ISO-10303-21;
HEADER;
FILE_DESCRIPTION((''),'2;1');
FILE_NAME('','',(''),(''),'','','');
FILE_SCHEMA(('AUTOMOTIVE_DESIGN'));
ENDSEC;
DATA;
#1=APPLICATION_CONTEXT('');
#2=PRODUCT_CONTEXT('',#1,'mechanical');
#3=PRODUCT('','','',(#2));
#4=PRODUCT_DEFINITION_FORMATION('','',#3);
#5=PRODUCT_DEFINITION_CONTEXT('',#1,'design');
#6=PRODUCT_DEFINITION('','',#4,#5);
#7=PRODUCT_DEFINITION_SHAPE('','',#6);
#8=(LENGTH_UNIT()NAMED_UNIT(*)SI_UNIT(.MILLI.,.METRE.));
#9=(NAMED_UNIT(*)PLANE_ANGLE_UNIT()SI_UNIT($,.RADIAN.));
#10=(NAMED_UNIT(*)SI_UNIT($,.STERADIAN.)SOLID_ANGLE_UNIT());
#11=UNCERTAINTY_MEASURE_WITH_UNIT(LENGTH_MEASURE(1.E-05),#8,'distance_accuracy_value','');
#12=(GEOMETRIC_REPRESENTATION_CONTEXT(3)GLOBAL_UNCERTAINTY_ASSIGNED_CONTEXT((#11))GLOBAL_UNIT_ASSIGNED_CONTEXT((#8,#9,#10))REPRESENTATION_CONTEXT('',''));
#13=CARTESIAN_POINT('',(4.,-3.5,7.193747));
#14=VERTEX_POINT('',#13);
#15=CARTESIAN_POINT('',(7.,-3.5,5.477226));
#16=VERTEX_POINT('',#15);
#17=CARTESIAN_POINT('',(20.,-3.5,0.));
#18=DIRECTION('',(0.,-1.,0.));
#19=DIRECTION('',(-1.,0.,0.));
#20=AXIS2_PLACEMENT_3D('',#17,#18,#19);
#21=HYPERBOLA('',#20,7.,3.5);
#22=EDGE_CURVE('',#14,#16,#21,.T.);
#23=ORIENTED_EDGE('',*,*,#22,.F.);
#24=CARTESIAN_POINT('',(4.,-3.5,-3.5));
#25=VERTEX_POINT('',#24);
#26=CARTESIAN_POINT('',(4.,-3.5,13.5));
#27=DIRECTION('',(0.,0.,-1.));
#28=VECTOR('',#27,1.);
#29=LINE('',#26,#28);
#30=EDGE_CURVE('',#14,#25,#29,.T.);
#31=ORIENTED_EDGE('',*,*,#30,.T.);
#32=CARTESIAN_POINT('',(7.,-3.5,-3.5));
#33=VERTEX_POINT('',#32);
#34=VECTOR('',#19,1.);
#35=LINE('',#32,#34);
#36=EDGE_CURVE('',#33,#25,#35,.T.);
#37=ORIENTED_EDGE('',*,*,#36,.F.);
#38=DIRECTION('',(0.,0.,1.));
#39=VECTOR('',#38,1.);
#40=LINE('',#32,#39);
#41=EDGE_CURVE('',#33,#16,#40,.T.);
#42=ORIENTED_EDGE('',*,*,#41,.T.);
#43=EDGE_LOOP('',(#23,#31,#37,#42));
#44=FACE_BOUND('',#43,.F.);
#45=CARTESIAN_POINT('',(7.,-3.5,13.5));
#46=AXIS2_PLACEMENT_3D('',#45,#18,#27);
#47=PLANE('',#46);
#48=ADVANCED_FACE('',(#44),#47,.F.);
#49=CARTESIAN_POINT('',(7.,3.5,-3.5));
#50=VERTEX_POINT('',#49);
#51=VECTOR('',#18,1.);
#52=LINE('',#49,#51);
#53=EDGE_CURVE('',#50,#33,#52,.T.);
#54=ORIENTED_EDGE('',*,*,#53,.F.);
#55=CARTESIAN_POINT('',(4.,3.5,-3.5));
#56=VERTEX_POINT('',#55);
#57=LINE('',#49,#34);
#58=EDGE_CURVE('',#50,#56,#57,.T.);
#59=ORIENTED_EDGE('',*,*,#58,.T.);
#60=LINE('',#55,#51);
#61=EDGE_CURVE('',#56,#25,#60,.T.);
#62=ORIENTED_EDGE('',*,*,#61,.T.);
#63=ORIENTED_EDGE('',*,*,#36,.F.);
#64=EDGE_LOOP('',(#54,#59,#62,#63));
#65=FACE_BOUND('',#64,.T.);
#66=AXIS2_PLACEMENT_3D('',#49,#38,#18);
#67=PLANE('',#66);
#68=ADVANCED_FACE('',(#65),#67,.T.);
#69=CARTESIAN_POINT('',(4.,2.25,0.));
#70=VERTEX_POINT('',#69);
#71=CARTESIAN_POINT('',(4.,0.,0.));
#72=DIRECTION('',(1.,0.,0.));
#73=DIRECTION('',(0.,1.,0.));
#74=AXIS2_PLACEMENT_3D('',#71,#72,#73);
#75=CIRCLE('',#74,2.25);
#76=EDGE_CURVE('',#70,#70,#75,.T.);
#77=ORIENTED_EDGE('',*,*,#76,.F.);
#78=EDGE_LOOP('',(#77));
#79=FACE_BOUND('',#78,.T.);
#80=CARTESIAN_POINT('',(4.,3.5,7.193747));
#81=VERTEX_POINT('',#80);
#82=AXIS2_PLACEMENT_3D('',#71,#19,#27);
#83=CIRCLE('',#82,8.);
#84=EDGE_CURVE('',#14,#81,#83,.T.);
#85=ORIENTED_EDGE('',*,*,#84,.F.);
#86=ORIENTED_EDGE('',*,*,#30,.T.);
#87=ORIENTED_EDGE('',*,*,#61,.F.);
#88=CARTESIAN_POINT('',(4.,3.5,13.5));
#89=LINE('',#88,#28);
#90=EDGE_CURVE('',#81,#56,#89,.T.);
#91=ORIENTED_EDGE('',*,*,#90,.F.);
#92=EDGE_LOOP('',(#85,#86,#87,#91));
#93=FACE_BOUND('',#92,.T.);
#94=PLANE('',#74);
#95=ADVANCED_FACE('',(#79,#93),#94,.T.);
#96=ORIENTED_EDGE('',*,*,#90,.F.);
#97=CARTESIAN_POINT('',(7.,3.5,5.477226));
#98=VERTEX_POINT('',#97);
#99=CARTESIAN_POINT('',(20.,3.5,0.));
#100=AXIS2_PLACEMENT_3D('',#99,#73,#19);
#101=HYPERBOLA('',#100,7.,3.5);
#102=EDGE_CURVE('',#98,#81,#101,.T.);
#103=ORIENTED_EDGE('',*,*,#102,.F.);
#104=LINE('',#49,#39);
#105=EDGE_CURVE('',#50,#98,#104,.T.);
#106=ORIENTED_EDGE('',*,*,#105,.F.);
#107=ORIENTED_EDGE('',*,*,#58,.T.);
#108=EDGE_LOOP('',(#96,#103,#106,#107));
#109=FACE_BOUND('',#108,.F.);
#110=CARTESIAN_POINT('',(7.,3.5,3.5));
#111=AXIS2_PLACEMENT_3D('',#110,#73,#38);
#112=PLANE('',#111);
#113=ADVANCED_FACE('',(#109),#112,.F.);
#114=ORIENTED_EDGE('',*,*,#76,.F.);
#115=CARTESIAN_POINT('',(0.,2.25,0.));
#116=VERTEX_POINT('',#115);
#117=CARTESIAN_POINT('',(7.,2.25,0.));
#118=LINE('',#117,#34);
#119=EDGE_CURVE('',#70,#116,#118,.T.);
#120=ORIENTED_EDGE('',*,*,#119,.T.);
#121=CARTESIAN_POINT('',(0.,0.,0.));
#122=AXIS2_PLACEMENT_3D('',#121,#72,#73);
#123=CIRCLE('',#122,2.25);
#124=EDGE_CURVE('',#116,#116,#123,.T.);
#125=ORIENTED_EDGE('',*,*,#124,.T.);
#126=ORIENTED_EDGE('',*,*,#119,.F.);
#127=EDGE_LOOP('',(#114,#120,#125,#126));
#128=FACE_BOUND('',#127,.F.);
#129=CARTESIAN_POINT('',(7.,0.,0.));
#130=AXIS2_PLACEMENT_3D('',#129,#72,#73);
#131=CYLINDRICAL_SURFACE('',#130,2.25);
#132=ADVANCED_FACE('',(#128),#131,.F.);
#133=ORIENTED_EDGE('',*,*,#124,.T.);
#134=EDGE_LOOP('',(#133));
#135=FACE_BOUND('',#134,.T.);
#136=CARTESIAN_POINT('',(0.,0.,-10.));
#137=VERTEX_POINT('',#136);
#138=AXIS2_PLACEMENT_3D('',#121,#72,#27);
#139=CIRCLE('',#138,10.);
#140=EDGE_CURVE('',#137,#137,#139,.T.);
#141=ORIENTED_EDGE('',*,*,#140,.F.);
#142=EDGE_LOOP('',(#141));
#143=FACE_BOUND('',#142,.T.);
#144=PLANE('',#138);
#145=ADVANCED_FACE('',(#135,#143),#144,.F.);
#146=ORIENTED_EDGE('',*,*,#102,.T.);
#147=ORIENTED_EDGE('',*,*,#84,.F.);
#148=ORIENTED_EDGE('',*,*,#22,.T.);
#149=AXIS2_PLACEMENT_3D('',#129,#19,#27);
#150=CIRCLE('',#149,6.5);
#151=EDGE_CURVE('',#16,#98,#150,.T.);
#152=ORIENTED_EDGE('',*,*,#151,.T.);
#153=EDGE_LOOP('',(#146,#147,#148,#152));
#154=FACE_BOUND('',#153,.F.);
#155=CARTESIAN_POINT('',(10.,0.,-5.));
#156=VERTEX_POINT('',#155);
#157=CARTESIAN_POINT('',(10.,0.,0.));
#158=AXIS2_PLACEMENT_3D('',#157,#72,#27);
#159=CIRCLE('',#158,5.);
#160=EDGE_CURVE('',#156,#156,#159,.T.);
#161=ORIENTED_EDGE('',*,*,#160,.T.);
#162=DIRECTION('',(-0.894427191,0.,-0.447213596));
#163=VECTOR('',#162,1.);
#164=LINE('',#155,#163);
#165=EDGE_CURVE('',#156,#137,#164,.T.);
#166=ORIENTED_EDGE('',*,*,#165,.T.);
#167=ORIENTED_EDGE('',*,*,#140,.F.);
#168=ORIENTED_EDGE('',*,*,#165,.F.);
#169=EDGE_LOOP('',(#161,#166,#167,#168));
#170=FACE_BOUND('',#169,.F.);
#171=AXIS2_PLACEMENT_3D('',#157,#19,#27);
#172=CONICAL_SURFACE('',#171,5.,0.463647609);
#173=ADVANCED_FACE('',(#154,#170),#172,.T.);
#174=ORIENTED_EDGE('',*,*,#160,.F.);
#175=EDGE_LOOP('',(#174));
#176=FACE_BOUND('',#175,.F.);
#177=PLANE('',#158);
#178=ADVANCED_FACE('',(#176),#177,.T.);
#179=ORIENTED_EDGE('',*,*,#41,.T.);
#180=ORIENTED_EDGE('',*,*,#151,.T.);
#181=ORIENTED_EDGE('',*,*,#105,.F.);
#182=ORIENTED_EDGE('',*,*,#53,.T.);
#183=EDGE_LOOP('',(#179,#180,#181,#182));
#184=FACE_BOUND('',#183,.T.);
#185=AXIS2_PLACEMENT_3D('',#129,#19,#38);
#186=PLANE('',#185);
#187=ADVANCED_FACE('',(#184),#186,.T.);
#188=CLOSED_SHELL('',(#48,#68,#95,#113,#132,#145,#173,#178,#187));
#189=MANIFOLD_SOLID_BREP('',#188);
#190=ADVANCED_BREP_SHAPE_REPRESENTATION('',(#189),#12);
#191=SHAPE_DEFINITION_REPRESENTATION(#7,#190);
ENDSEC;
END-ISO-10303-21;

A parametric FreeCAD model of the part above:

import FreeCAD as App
import Part
import Sketcher
from FreeCAD import Vector
Q = App.Units.Quantity


def add_polygon(sketch, points):
    """Adds a closed chain of lines whose ends are joined by coincident constraints."""
    first, n = sketch.GeometryCount, len(points)
    for a, b in zip(points, points[1:] + points[:1]):
        sketch.addGeometry(Part.LineSegment(App.Vector(*a, 0), App.Vector(*b, 0)), False)
    for i in range(n):
        sketch.addConstraint(Sketcher.Constraint("Coincident", first + i, 2, first + (i + 1) % n, 1))

doc = App.newDocument("Part")
body = doc.addObject("PartDesign::Body", "Body")

# Sketch on XZ plane
sketch1 = doc.addObject("Sketcher::SketchObject", "Sketch")
body.addObject(sketch1)
sketch1.AttachmentSupport = (doc.XZ_Plane, [""])
sketch1.MapMode = "FlatFace"
add_polygon(sketch1, [(0, -10), (0, 0), (10, 0), (10, -5)])  # lines 0-3
sketch1.addConstraint(Sketcher.Constraint("Vertical", 0))
sketch1.addConstraint(Sketcher.Constraint("Horizontal", 1))
sketch1.addConstraint(Sketcher.Constraint("Vertical", 2))
sketch1.addConstraint(Sketcher.Constraint("Coincident", 0, 2, -1, 1))
sketch1.addConstraint(Sketcher.Constraint("Equal", 1, 0))
sketch1.addConstraint(Sketcher.Constraint("DistanceX", 1, 1, 1, 2, Q("10 mm")))
sketch1.addConstraint(Sketcher.Constraint("DistanceY", 2, 2, 2, 1, Q("5 mm")))
revolution = doc.addObject("PartDesign::Revolution", "Revolution")
body.addObject(revolution)
revolution.Profile = sketch1
revolution.ReferenceAxis = (sketch1, ["H_Axis"])
revolution.Angle = 360

# Sketch on YZ plane
sketch2 = doc.addObject("Sketcher::SketchObject", "Sketch001")
body.addObject(sketch2)
sketch2.AttachmentSupport = (doc.YZ_Plane, [""])
sketch2.MapMode = "FlatFace"
sketch2.AttachmentOffset = App.Placement(Vector(0, 0, 7), App.Rotation())
sketch2.addGeometry(Part.Circle(Vector(0, 0, 0), Vector(0, 0, 1), 2.2), False)
sketch2.addConstraint(Sketcher.Constraint("Coincident", 0, 3, -1, 1))
sketch2.addConstraint(Sketcher.Constraint("Diameter", 0, Q("4.5 mm")))
pocket1 = doc.addObject("PartDesign::Pocket", "Pocket")
body.addObject(pocket1)
pocket1.Profile = sketch2
pocket1.Type = "TwoLengths"
pocket1.Length = 2
pocket1.Length2 = 10
pocket1.Reversed = True

# Sketch on YZ plane
sketch3 = doc.addObject("Sketcher::SketchObject", "Sketch002")
body.addObject(sketch3)
sketch3.AttachmentSupport = (doc.YZ_Plane, [""])
sketch3.MapMode = "FlatFace"
sketch3.AttachmentOffset = App.Placement(Vector(0, 0, 7), App.Rotation())
add_polygon(sketch3, [(-4, 14), (-4, -4), (4, -4), (4, 14)])  # lines 0-3
sketch3.addConstraint(Sketcher.Constraint("Vertical", 0))
sketch3.addConstraint(Sketcher.Constraint("Horizontal", 1))
sketch3.addConstraint(Sketcher.Constraint("Vertical", 2))
sketch3.addConstraint(Sketcher.Constraint("Horizontal", 3))
sketch3.addConstraint(Sketcher.Constraint("DistanceX", 1, 1, 1, 2, Q("7 mm")))
sketch3.addConstraint(Sketcher.Constraint("DistanceY", 0, 2, 0, 1, Q("17 mm")))
sketch3.addConstraint(Sketcher.Constraint("DistanceX", 0, 2, -1, 1, Q("3.5 mm")))
sketch3.addConstraint(Sketcher.Constraint("DistanceY", 0, 2, -1, 1, Q("3.5 mm")))
pocket2 = doc.addObject("PartDesign::Pocket", "Pocket001")
body.addObject(pocket2)
pocket2.Profile = sketch3
pocket2.Length = 3

# Sketch on YZ plane
sketch4 = doc.addObject("Sketcher::SketchObject", "Sketch003")
body.addObject(sketch4)
sketch4.AttachmentSupport = (doc.YZ_Plane, [""])
sketch4.MapMode = "FlatFace"
sketch4.AttachmentOffset = App.Placement(Vector(0, 0, 9), App.Rotation())
sketch4.addGeometry(Part.Circle(Vector(0, 0, 0), Vector(0, 0, 1), 2.2), False)
sketch4.addConstraint(Sketcher.Constraint("Coincident", 0, 3, -1, 1))
sketch4.addConstraint(Sketcher.Constraint("Diameter", 0, Q("4.5 mm")))
pad1 = doc.addObject("PartDesign::Pad", "Pad")
body.addObject(pad1)
pad1.Profile = sketch4
pad1.Length = 2
pad1.Reversed = True

doc.recompute()
